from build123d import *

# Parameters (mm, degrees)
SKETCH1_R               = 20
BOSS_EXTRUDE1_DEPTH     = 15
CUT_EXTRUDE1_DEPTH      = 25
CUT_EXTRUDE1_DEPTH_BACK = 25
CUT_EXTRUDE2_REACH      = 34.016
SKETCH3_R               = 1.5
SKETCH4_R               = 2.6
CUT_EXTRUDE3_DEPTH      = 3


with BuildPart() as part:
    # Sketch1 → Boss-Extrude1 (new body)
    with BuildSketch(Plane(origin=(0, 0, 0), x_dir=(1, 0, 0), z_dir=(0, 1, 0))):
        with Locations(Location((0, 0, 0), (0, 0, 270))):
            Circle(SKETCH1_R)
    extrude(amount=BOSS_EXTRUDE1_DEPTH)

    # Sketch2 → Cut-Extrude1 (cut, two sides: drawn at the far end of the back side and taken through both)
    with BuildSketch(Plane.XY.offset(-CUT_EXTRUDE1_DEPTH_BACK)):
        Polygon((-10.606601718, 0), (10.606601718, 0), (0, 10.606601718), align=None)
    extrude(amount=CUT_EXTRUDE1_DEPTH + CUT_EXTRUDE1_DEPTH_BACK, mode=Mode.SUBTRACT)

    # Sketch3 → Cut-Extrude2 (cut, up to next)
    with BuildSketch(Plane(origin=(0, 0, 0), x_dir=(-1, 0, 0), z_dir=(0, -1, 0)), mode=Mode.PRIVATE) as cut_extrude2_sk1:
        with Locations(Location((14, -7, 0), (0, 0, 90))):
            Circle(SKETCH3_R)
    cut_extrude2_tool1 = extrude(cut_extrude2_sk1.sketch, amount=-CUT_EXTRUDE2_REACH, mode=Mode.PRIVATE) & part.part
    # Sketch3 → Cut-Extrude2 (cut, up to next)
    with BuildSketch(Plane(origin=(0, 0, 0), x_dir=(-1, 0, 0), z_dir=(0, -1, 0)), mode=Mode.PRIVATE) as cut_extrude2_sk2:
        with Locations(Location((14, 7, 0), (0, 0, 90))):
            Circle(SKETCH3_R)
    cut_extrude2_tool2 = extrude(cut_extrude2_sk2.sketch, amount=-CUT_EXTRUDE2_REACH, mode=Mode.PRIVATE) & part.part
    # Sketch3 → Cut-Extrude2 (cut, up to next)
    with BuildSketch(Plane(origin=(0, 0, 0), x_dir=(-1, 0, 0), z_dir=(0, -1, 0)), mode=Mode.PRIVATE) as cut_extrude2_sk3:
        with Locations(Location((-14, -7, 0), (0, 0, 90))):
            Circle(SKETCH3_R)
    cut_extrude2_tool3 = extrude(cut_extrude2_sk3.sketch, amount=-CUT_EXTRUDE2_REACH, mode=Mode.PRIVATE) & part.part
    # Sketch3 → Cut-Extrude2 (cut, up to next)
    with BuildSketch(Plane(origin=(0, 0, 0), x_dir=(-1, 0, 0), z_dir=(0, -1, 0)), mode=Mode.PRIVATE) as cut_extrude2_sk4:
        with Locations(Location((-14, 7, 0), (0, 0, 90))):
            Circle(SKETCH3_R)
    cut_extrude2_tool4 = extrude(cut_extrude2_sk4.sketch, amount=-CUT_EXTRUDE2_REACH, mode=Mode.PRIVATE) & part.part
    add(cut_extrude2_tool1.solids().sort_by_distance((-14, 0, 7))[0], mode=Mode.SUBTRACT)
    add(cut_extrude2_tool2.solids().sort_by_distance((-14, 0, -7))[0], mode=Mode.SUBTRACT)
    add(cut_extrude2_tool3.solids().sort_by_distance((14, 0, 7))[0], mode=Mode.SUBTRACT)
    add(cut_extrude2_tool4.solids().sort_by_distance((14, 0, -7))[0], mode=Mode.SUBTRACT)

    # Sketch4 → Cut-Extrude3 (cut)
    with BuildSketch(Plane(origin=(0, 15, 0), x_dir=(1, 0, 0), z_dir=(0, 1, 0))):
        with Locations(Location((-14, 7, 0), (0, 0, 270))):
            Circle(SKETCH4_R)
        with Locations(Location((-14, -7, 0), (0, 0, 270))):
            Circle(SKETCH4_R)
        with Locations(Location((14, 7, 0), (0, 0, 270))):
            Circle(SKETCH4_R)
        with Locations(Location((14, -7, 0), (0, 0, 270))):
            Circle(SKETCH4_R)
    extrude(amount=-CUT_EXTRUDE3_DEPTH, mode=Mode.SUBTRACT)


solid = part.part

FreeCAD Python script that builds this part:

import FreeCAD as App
import Part
import Sketcher

V = App.Vector
Q = App.Units.Quantity

doc = App.newDocument("Part")
body = doc.addObject("PartDesign::Body", "Body")

# Sketch on XZ plane
sketch1 = doc.addObject("Sketcher::SketchObject", "Sketch")
body.addObject(sketch1)
sketch1.AttachmentSupport = (doc.XZ_Plane, [""])
sketch1.MapMode = "FlatFace"
sketch1.addGeometry(Part.Circle(V(0, 0, 0), V(0, 0, 1), 20), False)
sketch1.addConstraint(Sketcher.Constraint("Coincident", 0, 3, -1, 1))
sketch1.addConstraint(Sketcher.Constraint("Diameter", 0, Q("40 mm")))
pad1 = doc.addObject("PartDesign::Pad", "Pad")
body.addObject(pad1)
pad1.Profile = sketch1
pad1.Length = 15
pad1.Reversed = True

# Sketch on XY plane
sketch2 = doc.addObject("Sketcher::SketchObject", "Sketch001")
body.addObject(sketch2)
sketch2.AttachmentSupport = (doc.XY_Plane, [""])
sketch2.MapMode = "FlatFace"
sketch2.addGeometry(Part.LineSegment(V(-11, 0, 0), V(11, 0, 0)), False)
sketch2.addGeometry(Part.LineSegment(V(11, 0, 0), V(0, 11, 0)), False)
sketch2.addGeometry(Part.LineSegment(V(0, 11, 0), V(-11, 0, 0)), False)
sketch2.addConstraint(Sketcher.Constraint("Coincident", 0, 2, 1, 1))
sketch2.addConstraint(Sketcher.Constraint("Coincident", 1, 2, 2, 1))
sketch2.addConstraint(Sketcher.Constraint("Coincident", 2, 2, 0, 1))
sketch2.addConstraint(Sketcher.Constraint("Horizontal", 0))
sketch2.addConstraint(Sketcher.Constraint("Symmetric", 0, 2, 2, 2, -1, 1))
sketch2.addConstraint(Sketcher.Constraint("PointOnObject", 1, 2, -2))
sketch2.addConstraint(Sketcher.Constraint("Perpendicular", 1, 2))
sketch2.addConstraint(Sketcher.Constraint("Distance", 1, Q("15 mm")))
pocket1 = doc.addObject("PartDesign::Pocket", "Pocket")
body.addObject(pocket1)
pocket1.Profile = sketch2
pocket1.Type = "ThroughAll"
pocket1.Midplane = True

# Sketch on XZ plane
sketch3 = doc.addObject("Sketcher::SketchObject", "Sketch002")
body.addObject(sketch3)
sketch3.AttachmentSupport = (doc.XZ_Plane, [""])
sketch3.MapMode = "FlatFace"
sketch3.addGeometry(Part.Circle(V(-14, 7, 0), V(0, 0, 1), 1.5), False)
sketch3.addConstraint(Sketcher.Constraint("Diameter", 0, Q("3 mm")))
sketch3.addConstraint(Sketcher.Constraint("DistanceX", 0, 3, -1, 1, Q("14 mm")))
sketch3.addConstraint(Sketcher.Constraint("DistanceY", -1, 1, 0, 3, Q("7 mm")))
pocket2 = doc.addObject("PartDesign::Pocket", "Pocket001")
body.addObject(pocket2)
pocket2.Profile = sketch3
pocket2.Type = "UpToFirst"

# Sketch on XZ plane
sketch4 = doc.addObject("Sketcher::SketchObject", "Sketch003")
body.addObject(sketch4)
sketch4.AttachmentSupport = (doc.XZ_Plane, [""])
sketch4.MapMode = "FlatFace"
sketch4.addGeometry(Part.Circle(V(-14, -7, 0), V(0, 0, 1), 1.5), False)
sketch4.addConstraint(Sketcher.Constraint("Diameter", 0, Q("3 mm")))
sketch4.addConstraint(Sketcher.Constraint("DistanceX", 0, 3, -1, 1, Q("14 mm")))
sketch4.addConstraint(Sketcher.Constraint("DistanceY", 0, 3, -1, 1, Q("7 mm")))
pocket3 = doc.addObject("PartDesign::Pocket", "Pocket002")
body.addObject(pocket3)
pocket3.Profile = sketch4
pocket3.Type = "UpToFirst"

# Sketch on XZ plane
sketch5 = doc.addObject("Sketcher::SketchObject", "Sketch004")
body.addObject(sketch5)
sketch5.AttachmentSupport = (doc.XZ_Plane, [""])
sketch5.MapMode = "FlatFace"
sketch5.addGeometry(Part.Circle(V(14, 7, 0), V(0, 0, 1), 1.5), False)
sketch5.addConstraint(Sketcher.Constraint("Diameter", 0, Q("3 mm")))
sketch5.addConstraint(Sketcher.Constraint("DistanceX", -1, 1, 0, 3, Q("14 mm")))
sketch5.addConstraint(Sketcher.Constraint("DistanceY", -1, 1, 0, 3, Q("7 mm")))
pocket4 = doc.addObject("PartDesign::Pocket", "Pocket003")
body.addObject(pocket4)
pocket4.Profile = sketch5
pocket4.Type = "UpToFirst"

# Sketch on XZ plane
sketch6 = doc.addObject("Sketcher::SketchObject", "Sketch005")
body.addObject(sketch6)
sketch6.AttachmentSupport = (doc.XZ_Plane, [""])
sketch6.MapMode = "FlatFace"
sketch6.addGeometry(Part.Circle(V(14, -7, 0), V(0, 0, 1), 1.5), False)
sketch6.addConstraint(Sketcher.Constraint("Diameter", 0, Q("3 mm")))
sketch6.addConstraint(Sketcher.Constraint("DistanceX", -1, 1, 0, 3, Q("14 mm")))
sketch6.addConstraint(Sketcher.Constraint("DistanceY", 0, 3, -1, 1, Q("7 mm")))
pocket5 = doc.addObject("PartDesign::Pocket", "Pocket004")
body.addObject(pocket5)
pocket5.Profile = sketch6
pocket5.Type = "UpToFirst"

# Sketch on XZ plane
sketch7 = doc.addObject("Sketcher::SketchObject", "Sketch006")
body.addObject(sketch7)
sketch7.AttachmentSupport = (doc.XZ_Plane, [""])
sketch7.MapMode = "FlatFace"
sketch7.AttachmentOffset = App.Placement(V(0, 0, -15), App.Rotation())
sketch7.addGeometry(Part.Circle(V(-14, -7, 0), V(0, 0, 1), 2.6), False)
sketch7.addGeometry(Part.Circle(V(-14, 7, 0), V(0, 0, 1), 2.6), False)
sketch7.addGeometry(Part.Circle(V(14, -7, 0), V(0, 0, 1), 2.6), False)
sketch7.addGeometry(Part.Circle(V(14, 7, 0), V(0, 0, 1), 2.6), False)
sketch7.addConstraint(Sketcher.Constraint("Equal", 0, 1))
sketch7.addConstraint(Sketcher.Constraint("Equal", 1, 2))
sketch7.addConstraint(Sketcher.Constraint("Equal", 2, 3))
sketch7.addConstraint(Sketcher.Constraint("Symmetric", 1, 3, 2, 3, -1, 1))
sketch7.addConstraint(Sketcher.Constraint("Symmetric", 0, 3, 3, 3, -1, 1))
sketch7.addConstraint(Sketcher.Constraint("Symmetric", 0, 3, 2, 3, -2))
sketch7.addConstraint(Sketcher.Constraint("Diameter", 0, Q("5.2 mm")))
sketch7.addConstraint(Sketcher.Constraint("DistanceX", 0, 3, -1, 1, Q("14 mm")))
sketch7.addConstraint(Sketcher.Constraint("DistanceY", 0, 3, -1, 1, Q("7 mm")))
pocket6 = doc.addObject("PartDesign::Pocket", "Pocket005")
body.addObject(pocket6)
pocket6.Profile = sketch7
pocket6.Length = 3
pocket6.Reversed = True

doc.recompute()
